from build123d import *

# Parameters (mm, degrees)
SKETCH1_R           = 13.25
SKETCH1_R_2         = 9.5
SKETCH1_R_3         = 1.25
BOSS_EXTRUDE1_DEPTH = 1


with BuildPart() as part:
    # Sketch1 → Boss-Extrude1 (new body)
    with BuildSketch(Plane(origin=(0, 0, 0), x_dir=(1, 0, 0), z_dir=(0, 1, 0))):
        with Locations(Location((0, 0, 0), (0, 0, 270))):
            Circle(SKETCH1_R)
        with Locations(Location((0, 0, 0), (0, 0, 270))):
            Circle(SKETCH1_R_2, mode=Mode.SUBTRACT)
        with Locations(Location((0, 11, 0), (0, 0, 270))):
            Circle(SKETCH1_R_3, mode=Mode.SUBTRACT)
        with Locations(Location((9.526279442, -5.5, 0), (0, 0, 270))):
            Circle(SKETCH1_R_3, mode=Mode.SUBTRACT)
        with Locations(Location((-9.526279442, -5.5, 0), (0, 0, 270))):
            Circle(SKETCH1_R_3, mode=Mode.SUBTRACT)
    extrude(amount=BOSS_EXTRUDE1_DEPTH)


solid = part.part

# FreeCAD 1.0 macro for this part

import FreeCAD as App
import Part
import Sketcher

V = App.Vector

doc = App.newDocument("Part")
body = doc.addObject("PartDesign::Body", "Body")

# Sketch on XZ plane
sketch1 = doc.addObject("Sketcher::SketchObject", "Sketch")
body.addObject(sketch1)
sketch1.AttachmentSupport = (doc.XZ_Plane, [""])
sketch1.MapMode = "FlatFace"
sketch1.addGeometry(Part.Circle(V(0, 0, 0), V(0, 0, 1), 13.2), False)
sketch1.addGeometry(Part.Circle(V(0, -11, 0), V(0, 0, 1), 1.2), False)
sketch1.addGeometry(Part.Circle(V(-9.5, 5.5, 0), V(0, 0, 1), 1.2), False)
sketch1.addGeometry(Part.Circle(V(0, 0, 0), V(0, 0, 1), 9.5), False)
sketch1.addGeometry(Part.Circle(V(9.5, 5.5, 0), V(0, 0, 1), 1.2), False)
sketch1.addConstraint(Sketcher.Constraint("Coincident", 0, 3, -1, 1))
sketch1.addConstraint(Sketcher.Constraint("Coincident", 3, 3, -1, 1))
sketch1.addConstraint(Sketcher.Constraint("Equal", 1, 2))
sketch1.addConstraint(Sketcher.Constraint("Equal", 2, 4))
sketch1.addConstraint(Sketcher.Constraint("Symmetric", 2, 3, 4, 3, -2))
sketch1.addConstraint(Sketcher.Constraint("PointOnObject", 1, 3, -2))
sketch1.addConstraint(Sketcher.Constraint("Diameter", 3, 19.0))
sketch1.addConstraint(Sketcher.Constraint("Diameter", 0, 26.5))
sketch1.addConstraint(Sketcher.Constraint("Diameter", 1, 2.5))
sketch1.addConstraint(Sketcher.Constraint("DistanceY", 1, 3, -1, 1, 11.0))
sketch1.addConstraint(Sketcher.Constraint("DistanceY", -1, 1, 2, 3, 5.5))
sketch1.addConstraint(Sketcher.Constraint("DistanceX", 2, 3, -1, 1, 9.526279))
pad1 = doc.addObject("PartDesign::Pad", "Pad")
body.addObject(pad1)
pad1.Profile = sketch1
pad1.Length = 1
pad1.Reversed = True

doc.recompute()
